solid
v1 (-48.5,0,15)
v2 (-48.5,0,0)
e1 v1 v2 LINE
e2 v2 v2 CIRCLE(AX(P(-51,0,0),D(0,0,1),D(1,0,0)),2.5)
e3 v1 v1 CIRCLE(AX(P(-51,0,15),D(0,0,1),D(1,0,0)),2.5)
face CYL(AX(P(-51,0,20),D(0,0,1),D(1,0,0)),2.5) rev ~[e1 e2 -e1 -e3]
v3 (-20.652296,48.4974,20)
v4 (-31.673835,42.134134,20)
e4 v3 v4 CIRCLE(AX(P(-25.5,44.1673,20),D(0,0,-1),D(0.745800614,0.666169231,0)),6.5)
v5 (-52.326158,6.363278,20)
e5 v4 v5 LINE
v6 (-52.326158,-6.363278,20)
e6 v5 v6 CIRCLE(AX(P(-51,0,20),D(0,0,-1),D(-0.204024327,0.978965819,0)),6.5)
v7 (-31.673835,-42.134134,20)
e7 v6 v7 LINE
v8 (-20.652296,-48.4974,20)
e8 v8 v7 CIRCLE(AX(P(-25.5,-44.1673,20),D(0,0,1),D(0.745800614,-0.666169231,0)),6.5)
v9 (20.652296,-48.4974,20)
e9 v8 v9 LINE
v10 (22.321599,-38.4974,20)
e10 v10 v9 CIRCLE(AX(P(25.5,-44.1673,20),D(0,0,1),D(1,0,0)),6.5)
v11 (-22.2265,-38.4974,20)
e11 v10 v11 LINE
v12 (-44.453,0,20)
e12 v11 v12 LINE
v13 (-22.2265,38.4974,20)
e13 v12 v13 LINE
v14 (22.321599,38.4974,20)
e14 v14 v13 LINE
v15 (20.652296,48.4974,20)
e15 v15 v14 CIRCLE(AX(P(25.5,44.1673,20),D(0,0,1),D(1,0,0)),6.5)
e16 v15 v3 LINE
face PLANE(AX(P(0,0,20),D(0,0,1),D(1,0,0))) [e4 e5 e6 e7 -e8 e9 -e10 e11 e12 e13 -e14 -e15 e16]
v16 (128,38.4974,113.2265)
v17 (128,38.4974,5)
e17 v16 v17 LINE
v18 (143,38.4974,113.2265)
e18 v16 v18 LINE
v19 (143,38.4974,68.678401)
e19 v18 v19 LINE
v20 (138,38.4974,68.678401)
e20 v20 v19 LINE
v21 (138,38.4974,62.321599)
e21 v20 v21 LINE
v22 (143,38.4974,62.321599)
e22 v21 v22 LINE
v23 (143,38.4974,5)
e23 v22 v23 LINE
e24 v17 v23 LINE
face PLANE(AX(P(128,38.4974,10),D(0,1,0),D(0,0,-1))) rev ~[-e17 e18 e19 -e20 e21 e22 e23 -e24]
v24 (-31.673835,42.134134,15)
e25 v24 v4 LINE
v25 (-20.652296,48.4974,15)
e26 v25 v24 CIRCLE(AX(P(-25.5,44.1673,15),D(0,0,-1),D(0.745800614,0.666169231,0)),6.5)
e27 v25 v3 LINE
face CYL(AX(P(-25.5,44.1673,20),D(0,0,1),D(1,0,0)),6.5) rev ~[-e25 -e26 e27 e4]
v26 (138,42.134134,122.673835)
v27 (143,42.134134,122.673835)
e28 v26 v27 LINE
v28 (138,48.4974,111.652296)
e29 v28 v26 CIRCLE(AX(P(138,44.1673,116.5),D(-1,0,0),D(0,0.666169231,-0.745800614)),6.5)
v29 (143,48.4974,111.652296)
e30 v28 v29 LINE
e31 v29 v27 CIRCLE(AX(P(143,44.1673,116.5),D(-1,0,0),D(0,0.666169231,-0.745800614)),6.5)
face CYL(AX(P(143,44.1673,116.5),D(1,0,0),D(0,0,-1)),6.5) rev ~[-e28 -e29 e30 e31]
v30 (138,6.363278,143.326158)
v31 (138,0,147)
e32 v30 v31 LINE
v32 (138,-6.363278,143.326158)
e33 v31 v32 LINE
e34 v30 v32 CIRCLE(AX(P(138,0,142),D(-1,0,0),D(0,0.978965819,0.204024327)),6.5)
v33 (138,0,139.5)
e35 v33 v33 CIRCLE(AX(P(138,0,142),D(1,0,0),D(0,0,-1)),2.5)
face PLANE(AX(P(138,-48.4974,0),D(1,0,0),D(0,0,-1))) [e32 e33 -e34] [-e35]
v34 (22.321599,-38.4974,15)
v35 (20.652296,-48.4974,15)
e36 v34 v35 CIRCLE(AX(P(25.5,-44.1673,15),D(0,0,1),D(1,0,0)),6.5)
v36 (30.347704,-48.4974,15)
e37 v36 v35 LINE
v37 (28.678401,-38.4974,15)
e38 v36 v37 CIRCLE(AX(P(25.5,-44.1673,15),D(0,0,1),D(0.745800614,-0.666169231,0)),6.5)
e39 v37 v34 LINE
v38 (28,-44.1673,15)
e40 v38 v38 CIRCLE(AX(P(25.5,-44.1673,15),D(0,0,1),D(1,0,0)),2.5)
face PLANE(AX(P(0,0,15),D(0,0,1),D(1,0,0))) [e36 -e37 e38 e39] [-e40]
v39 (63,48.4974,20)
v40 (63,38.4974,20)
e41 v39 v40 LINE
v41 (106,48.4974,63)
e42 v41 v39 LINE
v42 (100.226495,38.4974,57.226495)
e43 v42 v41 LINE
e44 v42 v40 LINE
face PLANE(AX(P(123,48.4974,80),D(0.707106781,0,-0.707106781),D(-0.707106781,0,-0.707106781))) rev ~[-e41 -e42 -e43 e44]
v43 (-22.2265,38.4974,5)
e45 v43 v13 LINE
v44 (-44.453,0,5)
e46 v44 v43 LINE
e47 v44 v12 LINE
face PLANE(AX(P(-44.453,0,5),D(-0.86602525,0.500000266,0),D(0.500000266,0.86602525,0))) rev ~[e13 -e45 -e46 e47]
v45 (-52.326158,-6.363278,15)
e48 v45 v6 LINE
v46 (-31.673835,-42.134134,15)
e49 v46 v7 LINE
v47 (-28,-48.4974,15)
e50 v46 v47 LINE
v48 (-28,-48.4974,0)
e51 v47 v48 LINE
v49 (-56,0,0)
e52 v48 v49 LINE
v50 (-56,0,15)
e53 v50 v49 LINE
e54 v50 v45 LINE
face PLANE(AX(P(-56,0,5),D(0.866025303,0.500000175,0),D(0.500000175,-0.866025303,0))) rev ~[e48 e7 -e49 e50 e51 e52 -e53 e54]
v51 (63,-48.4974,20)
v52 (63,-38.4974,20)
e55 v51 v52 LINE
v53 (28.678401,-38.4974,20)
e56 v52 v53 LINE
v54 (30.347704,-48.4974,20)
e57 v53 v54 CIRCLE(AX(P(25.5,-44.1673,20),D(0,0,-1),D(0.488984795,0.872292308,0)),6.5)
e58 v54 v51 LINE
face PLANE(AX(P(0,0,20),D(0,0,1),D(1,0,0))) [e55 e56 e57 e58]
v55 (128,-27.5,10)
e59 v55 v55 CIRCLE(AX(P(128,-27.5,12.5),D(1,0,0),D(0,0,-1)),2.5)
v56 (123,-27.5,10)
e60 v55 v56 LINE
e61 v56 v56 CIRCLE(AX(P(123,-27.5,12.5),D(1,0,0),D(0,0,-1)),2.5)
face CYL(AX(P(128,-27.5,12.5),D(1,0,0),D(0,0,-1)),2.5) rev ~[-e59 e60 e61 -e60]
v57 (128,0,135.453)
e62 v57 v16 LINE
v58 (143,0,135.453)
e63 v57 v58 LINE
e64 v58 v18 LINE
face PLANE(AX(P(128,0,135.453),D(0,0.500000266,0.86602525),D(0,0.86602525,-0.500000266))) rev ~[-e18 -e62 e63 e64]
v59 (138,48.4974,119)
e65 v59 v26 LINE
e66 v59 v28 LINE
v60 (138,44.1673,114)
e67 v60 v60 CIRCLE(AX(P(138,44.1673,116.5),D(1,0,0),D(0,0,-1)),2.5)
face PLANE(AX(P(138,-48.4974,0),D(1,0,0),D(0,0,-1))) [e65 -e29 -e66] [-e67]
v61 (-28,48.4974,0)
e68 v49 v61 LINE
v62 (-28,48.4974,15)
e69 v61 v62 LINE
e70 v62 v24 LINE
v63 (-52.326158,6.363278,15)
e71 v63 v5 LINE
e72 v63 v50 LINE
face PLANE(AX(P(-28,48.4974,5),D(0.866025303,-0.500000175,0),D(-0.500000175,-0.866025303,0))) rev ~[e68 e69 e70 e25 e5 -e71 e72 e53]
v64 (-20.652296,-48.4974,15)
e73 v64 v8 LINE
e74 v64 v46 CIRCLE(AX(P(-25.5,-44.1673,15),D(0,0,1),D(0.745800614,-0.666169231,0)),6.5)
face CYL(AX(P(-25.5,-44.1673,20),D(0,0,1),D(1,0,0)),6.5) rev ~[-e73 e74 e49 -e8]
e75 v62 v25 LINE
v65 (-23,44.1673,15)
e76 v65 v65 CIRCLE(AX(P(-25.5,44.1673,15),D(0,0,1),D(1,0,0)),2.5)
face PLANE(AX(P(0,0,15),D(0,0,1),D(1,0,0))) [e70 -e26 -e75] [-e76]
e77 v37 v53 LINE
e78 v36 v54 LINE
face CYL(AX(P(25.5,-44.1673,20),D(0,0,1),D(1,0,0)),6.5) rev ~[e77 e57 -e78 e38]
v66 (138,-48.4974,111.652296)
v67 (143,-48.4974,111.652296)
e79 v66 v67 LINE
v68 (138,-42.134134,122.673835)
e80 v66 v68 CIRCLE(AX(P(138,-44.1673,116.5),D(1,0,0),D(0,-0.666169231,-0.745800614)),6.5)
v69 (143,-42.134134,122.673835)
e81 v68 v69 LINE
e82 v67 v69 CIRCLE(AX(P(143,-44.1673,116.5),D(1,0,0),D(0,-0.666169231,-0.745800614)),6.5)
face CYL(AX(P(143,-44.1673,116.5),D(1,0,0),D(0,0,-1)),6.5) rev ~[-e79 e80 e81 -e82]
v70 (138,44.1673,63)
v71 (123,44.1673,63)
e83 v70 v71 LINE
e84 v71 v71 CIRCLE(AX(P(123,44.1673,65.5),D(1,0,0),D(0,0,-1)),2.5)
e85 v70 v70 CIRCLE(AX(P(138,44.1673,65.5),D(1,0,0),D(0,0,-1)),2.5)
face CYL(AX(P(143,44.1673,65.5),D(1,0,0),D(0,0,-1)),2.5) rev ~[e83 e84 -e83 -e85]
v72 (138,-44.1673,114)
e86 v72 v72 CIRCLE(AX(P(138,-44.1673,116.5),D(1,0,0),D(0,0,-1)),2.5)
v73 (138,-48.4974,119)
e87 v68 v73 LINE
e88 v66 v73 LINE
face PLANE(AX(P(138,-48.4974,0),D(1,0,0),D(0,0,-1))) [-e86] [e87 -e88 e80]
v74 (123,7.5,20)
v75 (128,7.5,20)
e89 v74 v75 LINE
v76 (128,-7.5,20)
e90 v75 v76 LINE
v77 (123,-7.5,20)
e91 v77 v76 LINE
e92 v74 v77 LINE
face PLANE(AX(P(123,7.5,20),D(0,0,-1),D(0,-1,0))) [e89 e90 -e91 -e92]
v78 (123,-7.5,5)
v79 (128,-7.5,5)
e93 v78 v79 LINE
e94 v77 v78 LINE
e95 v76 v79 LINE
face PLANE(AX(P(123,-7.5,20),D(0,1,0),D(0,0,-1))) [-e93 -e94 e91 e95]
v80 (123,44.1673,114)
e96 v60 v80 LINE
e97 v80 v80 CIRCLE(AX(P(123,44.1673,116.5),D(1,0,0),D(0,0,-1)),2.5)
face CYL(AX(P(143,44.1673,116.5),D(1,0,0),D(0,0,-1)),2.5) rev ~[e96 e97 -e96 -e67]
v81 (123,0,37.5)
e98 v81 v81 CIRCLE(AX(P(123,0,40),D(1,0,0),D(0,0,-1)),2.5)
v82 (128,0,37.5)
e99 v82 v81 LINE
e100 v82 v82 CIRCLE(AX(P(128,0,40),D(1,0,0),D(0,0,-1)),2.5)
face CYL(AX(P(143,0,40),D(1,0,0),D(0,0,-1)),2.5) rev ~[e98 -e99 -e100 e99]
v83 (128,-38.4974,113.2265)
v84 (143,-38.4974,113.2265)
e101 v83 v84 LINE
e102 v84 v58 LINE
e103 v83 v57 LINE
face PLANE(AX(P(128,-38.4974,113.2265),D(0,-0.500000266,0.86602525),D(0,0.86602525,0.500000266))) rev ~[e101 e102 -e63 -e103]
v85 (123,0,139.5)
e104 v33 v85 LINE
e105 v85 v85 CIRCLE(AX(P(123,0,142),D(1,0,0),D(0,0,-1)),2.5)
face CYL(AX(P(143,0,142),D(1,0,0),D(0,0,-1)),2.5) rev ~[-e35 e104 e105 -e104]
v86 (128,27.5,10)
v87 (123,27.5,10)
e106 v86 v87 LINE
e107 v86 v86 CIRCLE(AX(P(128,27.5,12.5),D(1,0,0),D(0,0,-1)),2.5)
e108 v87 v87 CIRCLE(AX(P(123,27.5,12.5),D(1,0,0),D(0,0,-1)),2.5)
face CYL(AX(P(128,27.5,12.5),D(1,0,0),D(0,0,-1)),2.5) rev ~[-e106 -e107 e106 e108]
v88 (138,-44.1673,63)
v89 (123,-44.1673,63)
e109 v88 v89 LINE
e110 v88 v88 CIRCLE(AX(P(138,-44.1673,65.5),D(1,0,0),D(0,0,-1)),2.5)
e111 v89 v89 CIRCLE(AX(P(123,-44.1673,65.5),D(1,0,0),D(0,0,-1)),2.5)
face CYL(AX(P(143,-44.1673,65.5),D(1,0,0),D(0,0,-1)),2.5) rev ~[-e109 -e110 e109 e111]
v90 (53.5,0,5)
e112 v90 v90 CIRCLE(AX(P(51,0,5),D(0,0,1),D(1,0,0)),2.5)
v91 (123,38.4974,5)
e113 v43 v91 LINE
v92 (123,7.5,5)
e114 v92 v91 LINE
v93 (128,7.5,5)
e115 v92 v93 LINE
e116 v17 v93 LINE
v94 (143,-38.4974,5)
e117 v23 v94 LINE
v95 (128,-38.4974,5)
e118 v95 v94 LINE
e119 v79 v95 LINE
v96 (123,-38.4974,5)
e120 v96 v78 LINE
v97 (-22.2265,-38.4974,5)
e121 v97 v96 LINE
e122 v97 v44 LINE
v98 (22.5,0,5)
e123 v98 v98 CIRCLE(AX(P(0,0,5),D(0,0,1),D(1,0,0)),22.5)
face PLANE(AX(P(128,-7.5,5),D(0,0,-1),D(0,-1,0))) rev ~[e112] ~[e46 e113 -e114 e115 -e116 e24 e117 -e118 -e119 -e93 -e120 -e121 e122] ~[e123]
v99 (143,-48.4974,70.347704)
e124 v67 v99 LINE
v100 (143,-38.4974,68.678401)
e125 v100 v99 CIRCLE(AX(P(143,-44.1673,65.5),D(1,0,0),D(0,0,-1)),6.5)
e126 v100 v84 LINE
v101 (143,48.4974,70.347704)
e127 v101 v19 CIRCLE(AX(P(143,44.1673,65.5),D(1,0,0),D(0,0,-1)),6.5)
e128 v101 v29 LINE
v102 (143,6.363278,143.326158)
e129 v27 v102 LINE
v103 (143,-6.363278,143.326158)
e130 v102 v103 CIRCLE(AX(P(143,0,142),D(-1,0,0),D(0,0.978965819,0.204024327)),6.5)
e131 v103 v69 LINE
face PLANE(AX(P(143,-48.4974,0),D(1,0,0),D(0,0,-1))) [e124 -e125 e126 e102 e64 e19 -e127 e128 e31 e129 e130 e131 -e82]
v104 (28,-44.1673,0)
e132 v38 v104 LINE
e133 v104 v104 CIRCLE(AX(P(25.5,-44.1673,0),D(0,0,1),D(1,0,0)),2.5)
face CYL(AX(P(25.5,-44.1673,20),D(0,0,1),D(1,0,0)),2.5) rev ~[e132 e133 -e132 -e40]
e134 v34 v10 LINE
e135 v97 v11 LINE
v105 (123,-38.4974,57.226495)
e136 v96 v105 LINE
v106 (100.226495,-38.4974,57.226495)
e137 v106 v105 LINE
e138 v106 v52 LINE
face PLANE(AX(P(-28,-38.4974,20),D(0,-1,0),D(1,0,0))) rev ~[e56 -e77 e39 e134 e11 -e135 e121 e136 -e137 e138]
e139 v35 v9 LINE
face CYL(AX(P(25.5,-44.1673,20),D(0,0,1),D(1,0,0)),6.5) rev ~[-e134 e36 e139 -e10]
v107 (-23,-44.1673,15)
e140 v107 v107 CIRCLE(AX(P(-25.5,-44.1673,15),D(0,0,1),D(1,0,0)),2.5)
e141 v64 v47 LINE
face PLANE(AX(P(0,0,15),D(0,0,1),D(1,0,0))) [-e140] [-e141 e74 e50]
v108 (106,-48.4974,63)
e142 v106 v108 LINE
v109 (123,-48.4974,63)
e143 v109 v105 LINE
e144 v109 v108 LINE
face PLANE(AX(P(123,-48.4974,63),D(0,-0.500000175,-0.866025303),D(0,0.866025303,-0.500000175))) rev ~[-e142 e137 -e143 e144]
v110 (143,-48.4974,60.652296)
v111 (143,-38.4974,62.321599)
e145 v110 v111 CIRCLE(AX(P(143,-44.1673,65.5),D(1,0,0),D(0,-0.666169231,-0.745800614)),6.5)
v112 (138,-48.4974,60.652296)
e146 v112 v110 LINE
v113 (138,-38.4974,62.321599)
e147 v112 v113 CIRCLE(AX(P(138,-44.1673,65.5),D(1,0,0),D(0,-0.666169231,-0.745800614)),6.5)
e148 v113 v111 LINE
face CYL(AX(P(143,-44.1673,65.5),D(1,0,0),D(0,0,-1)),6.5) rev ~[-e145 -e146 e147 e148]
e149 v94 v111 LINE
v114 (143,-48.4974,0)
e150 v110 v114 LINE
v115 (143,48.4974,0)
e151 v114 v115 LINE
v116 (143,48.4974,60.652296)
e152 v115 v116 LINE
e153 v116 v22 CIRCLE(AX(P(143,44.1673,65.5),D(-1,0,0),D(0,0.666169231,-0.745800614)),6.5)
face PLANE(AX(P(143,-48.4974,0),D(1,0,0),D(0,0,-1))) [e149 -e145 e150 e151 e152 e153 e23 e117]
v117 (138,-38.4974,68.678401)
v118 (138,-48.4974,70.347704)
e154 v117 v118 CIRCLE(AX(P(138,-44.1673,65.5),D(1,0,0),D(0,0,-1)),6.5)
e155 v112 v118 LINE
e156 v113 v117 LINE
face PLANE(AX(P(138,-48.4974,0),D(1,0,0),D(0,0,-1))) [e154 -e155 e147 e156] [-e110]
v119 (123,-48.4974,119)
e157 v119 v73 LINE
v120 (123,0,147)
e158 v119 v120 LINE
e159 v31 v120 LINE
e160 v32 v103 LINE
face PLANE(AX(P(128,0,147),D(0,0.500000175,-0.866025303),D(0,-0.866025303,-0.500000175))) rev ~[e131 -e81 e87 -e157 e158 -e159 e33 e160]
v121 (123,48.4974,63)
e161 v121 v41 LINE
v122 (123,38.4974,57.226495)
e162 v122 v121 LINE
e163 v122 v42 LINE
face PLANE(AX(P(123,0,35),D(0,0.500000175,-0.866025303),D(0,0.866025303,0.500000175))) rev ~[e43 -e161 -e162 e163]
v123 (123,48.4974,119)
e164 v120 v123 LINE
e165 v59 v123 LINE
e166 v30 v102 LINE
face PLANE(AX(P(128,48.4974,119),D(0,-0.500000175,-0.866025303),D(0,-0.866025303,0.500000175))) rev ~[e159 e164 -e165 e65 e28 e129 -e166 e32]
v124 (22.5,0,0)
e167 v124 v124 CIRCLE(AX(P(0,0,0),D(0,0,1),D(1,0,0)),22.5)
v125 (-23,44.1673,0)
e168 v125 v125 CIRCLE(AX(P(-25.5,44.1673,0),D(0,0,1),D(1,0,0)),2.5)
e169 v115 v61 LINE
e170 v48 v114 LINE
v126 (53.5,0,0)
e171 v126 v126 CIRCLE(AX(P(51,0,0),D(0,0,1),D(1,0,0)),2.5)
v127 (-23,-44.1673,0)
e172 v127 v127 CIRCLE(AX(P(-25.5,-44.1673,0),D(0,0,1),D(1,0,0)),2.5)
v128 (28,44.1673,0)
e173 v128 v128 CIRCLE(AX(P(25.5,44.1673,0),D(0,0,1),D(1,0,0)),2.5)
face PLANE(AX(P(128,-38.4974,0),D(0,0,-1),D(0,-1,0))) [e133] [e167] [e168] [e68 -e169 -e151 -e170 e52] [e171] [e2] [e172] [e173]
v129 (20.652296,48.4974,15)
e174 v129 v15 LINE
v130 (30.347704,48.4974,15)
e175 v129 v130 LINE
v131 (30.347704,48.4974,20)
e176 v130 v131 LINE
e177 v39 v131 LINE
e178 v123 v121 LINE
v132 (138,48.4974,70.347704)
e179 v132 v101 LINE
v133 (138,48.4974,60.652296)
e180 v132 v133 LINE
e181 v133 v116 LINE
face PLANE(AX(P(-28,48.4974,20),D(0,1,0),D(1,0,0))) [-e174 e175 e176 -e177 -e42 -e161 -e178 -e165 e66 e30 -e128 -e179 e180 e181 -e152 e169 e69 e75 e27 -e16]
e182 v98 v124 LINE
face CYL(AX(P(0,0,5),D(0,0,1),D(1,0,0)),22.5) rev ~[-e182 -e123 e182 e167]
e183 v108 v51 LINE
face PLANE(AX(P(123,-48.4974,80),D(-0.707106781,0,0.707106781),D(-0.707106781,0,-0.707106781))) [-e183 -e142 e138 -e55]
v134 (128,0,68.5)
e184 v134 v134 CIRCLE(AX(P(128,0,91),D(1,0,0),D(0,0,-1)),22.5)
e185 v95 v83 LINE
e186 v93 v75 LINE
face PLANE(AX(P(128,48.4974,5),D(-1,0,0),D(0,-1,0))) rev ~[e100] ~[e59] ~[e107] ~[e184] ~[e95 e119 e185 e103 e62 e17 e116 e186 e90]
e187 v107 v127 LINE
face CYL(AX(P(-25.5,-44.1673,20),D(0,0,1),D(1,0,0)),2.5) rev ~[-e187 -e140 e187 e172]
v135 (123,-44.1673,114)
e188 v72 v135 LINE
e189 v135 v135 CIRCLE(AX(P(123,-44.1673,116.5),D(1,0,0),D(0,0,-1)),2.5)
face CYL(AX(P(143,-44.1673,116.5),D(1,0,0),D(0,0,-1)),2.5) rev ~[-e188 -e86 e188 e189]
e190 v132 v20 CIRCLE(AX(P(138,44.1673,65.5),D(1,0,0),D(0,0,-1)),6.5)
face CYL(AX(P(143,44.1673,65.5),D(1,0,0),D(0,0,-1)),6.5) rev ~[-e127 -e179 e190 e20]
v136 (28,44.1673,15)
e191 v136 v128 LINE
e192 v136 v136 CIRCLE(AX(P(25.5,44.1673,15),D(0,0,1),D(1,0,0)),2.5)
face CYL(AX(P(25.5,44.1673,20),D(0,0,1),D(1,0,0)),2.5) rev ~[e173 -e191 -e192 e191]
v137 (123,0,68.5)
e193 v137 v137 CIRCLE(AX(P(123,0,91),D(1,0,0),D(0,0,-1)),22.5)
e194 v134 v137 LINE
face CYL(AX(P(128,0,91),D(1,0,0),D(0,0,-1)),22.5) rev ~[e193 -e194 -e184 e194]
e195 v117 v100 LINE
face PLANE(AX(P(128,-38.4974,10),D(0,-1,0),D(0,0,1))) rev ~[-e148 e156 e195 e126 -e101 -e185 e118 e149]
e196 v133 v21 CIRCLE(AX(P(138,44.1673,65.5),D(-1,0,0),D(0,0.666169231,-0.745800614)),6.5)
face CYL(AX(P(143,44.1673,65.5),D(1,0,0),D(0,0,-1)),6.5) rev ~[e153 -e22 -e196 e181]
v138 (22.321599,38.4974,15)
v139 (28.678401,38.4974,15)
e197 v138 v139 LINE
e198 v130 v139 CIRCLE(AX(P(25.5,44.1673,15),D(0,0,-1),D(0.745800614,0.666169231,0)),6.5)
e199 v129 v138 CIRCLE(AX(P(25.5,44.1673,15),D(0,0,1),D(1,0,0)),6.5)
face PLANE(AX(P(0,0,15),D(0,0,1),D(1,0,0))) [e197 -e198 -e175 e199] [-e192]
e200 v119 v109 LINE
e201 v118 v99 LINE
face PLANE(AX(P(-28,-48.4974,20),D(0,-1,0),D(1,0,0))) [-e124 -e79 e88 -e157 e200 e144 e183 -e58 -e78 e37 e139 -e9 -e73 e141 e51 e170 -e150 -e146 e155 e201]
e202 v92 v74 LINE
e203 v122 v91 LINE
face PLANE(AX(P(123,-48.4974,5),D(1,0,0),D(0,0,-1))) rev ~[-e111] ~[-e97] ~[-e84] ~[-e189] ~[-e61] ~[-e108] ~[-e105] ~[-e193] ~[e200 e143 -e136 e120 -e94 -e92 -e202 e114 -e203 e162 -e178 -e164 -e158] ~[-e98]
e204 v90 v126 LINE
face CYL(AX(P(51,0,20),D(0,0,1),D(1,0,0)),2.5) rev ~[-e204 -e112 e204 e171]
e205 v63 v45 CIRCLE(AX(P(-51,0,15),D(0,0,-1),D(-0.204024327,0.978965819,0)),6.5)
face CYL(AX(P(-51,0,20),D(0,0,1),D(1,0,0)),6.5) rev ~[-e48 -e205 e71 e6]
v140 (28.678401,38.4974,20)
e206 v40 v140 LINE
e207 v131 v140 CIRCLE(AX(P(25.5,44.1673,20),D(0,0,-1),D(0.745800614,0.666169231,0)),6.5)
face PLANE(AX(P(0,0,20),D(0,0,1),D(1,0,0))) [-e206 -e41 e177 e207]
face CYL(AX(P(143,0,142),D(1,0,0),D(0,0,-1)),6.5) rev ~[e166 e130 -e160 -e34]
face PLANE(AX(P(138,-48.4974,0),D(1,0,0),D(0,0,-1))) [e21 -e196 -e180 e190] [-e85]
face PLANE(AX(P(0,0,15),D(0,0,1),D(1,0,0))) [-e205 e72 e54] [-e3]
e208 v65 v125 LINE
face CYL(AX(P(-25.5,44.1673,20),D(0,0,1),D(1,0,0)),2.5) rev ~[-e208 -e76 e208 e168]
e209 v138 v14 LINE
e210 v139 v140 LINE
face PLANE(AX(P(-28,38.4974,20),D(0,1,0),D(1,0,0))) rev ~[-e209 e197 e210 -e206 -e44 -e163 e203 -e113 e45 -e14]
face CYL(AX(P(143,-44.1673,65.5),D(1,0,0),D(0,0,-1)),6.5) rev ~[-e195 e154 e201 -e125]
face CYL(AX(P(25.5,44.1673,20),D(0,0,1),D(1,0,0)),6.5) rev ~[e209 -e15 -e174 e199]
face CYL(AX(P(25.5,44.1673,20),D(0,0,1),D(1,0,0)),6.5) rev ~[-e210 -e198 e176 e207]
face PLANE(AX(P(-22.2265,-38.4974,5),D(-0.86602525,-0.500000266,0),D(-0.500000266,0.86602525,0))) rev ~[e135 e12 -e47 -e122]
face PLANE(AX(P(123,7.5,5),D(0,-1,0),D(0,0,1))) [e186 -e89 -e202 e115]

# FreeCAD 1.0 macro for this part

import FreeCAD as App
import Part
import Sketcher

V = App.Vector
Q = App.Units.Quantity

doc = App.newDocument("Part")
body = doc.addObject("PartDesign::Body", "Body")

# Sketch on XY plane
sketch1 = body.newObject("Sketcher::SketchObject", "Sketch")
sketch1.AttachmentSupport = (doc.getObject("XY_Plane"), [""])
sketch1.MapMode = "FlatFace"
sketch1.addGeometry([
    Part.LineSegment(V(-28, 48.5, 0), V(-56, 0, 0)),  # 0
    Part.LineSegment(V(-56, 0, 0), V(-28, -48.5, 0)),  # 1
    Part.LineSegment(V(-28, -48.5, 0), V(28, -48.5, 0)),  # 2
    Part.LineSegment(V(28, -48.5, 0), V(56, 0, 0)),  # 3
    Part.LineSegment(V(56, 0, 0), V(28, 48.5, 0)),  # 4
    Part.LineSegment(V(28, 48.5, 0), V(-28, 48.5, 0)),  # 5
    Part.Circle(V(-26, -15, 0), V(0, 0, 1), 2.5),  # 6
    Part.Circle(V(0, -30, 0), V(0, 0, 1), 2.5),  # 7
    Part.Circle(V(26, -15, 0), V(0, 0, 1), 2.5),  # 8
    Part.Circle(V(-26, 15, 0), V(0, 0, 1), 2.5),  # 9
    Part.Circle(V(26, 15, 0), V(0, 0, 1), 2.5),  # 10
    Part.Circle(V(0, 30, 0), V(0, 0, 1), 2.5),  # 11
], False)
sketch1.addConstraint([
    Sketcher.Constraint("Coincident", 0, 2, 1, 1),
    Sketcher.Constraint("Coincident", 1, 2, 2, 1),
    Sketcher.Constraint("Coincident", 2, 2, 3, 1),
    Sketcher.Constraint("Coincident", 3, 2, 4, 1),
    Sketcher.Constraint("Coincident", 4, 2, 5, 1),
    Sketcher.Constraint("Coincident", 5, 2, 0, 1),
    Sketcher.Constraint("Horizontal", 2),
    Sketcher.Constraint("Horizontal", 5),
    Sketcher.Constraint("Equal", 6, 7),
    Sketcher.Constraint("Equal", 7, 8),
    Sketcher.Constraint("Equal", 8, 9),
    Sketcher.Constraint("Equal", 9, 10),
    Sketcher.Constraint("Equal", 10, 11),
    Sketcher.Constraint("Symmetric", 8, 3, 9, 3, -1, 1),
    Sketcher.Constraint("Symmetric", 6, 3, 10, 3, -1, 1),
    Sketcher.Constraint("Symmetric", 7, 3, 11, 3, -1, 1),
    Sketcher.Constraint("Symmetric", 0, 2, 3, 2, -1, 1),
    Sketcher.Constraint("Symmetric", 1, 2, 4, 2, -1, 1),
    Sketcher.Constraint("Symmetric", 6, 3, 8, 3, -2),
    Sketcher.Constraint("PointOnObject", 7, 3, -2),
    Sketcher.Constraint("PointOnObject", 0, 2, -1),
    Sketcher.Constraint("Parallel", 0, 3),
    Sketcher.Constraint("Vertical", 2, 2, 4, 2),
    Sketcher.Constraint("Diameter", 6, Q("5 mm")),
    Sketcher.Constraint("DistanceY", 7, 3, -1, 1, Q("30 mm")),
    Sketcher.Constraint("DistanceY", 6, 3, 9, 3, Q("30 mm")),
    Sketcher.Constraint("DistanceX", 2, 1, 2, 2, Q("56 mm")),
    Sketcher.Constraint("Angle", 0, Q("-120 deg")),
    Sketcher.Constraint("Distance", 0, Q("56 mm")),
    Sketcher.Constraint("DistanceX", 6, 3, -1, 1, Q("25.9808 mm")),
])
pad1 = body.newObject("PartDesign::Pad", "Pad")
pad1.Profile = sketch1
pad1.Length = 5

# Sketch on XY plane
sketch2 = body.newObject("Sketcher::SketchObject", "Sketch001")
sketch2.AttachmentSupport = (doc.getObject("XY_Plane"), [""])
sketch2.MapMode = "FlatFace"
sketch2.AttachmentOffset = App.Placement(V(0, 0, 5), App.Rotation())
sketch2.addGeometry([
    Part.LineSegment(V(128, 48, 0), V(28, 48, 0)),  # 0
    Part.LineSegment(V(28, 48, 0), V(56, 0, 0)),  # 1
    Part.LineSegment(V(56, 0, 0), V(28, -48, 0)),  # 2
    Part.LineSegment(V(28, -48, 0), V(128, -48, 0)),  # 3
    Part.LineSegment(V(128, -48, 0), V(128, 48, 0)),  # 4
], False)
sketch2.addConstraint([
    Sketcher.Constraint("Coincident", 0, 2, 1, 1),
    Sketcher.Constraint("Coincident", 1, 2, 2, 1),
    Sketcher.Constraint("Coincident", 2, 2, 3, 1),
    Sketcher.Constraint("Coincident", 3, 2, 4, 1),
    Sketcher.Constraint("Coincident", 4, 2, 0, 1),
    Sketcher.Constraint("Horizontal", 0),
    Sketcher.Constraint("Horizontal", 3),
    Sketcher.Constraint("Vertical", 4),
    Sketcher.Constraint("Symmetric", 0, 2, 2, 2, -1),
    Sketcher.Constraint("PointOnObject", 1, 2, -1),
    Sketcher.Constraint("DistanceX", 0, 2, 0, 1, Q("100 mm")),
    Sketcher.Constraint("Angle", 1, Q("-60 deg")),
    Sketcher.Constraint("Distance", 1, Q("56 mm")),
    Sketcher.Constraint("DistanceX", -1, 1, 0, 2, Q("28 mm")),
])
pad2 = body.newObject("PartDesign::Pad", "Pad001")
pad2.Profile = sketch2
pad2.Length = 5
pad2.Reversed = True

# Sketch on YZ plane
sketch3 = body.newObject("Sketcher::SketchObject", "Sketch002")
sketch3.AttachmentSupport = (doc.getObject("YZ_Plane"), [""])
sketch3.MapMode = "FlatFace"
sketch3.AttachmentOffset = App.Placement(V(0, 0, 128), App.Rotation())
sketch3.addGeometry([
    Part.LineSegment(V(-48.5, 5, 0), V(48.5, 5, 0)),  # 0
    Part.LineSegment(V(48.5, 5, 0), V(48.5, 119, 0)),  # 1
    Part.LineSegment(V(48.5, 119, 0), V(0, 147, 0)),  # 2
    Part.LineSegment(V(0, 147, 0), V(-48.5, 119, 0)),  # 3
    Part.LineSegment(V(-48.5, 119, 0), V(-48.5, 5, 0)),  # 4
    Part.Circle(V(30, 91, 0), V(0, 0, 1), 2.5),  # 5
    Part.Circle(V(15, 65, 0), V(0, 0, 1), 2.5),  # 6
    Part.Circle(V(-30, 91, 0), V(0, 0, 1), 2.5),  # 7
    Part.Circle(V(-15, 117, 0), V(0, 0, 1), 2.5),  # 8
    Part.Circle(V(-15, 65, 0), V(0, 0, 1), 2.5),  # 9
    Part.Circle(V(15, 117, 0), V(0, 0, 1), 2.5),  # 10
    Part.Circle(V(0, 91, 0), V(0, 0, 1), 22.5),  # 11
], False)
sketch3.addConstraint([
    Sketcher.Constraint("Coincident", 0, 2, 1, 1),
    Sketcher.Constraint("Coincident", 1, 2, 2, 1),
    Sketcher.Constraint("Coincident", 2, 2, 3, 1),
    Sketcher.Constraint("Coincident", 3, 2, 4, 1),
    Sketcher.Constraint("Coincident", 4, 2, 0, 1),
    Sketcher.Constraint("Horizontal", 0),
    Sketcher.Constraint("Vertical", 1),
    Sketcher.Constraint("Vertical", 4),
    Sketcher.Constraint("Equal", 5, 6),
    Sketcher.Constraint("Equal", 6, 7),
    Sketcher.Constraint("Equal", 7, 8),
    Sketcher.Constraint("Equal", 8, 9),
    Sketcher.Constraint("Equal", 9, 10),
    Sketcher.Constraint("Symmetric", 5, 3, 7, 3, -2),
    Sketcher.Constraint("Symmetric", 6, 3, 9, 3, -2),
    Sketcher.Constraint("Symmetric", 8, 3, 10, 3, -2),
    Sketcher.Constraint("Symmetric", 1, 2, 3, 2, -2),
    Sketcher.Constraint("PointOnObject", 11, 3, -2),
    Sketcher.Constraint("PointOnObject", 2, 2, -2),
    Sketcher.Constraint("Horizontal", 7, 3, 11, 3),
    Sketcher.Constraint("Vertical", 8, 3, 9, 3),
    Sketcher.Constraint("Diameter", 5, Q("5 mm")),
    Sketcher.Constraint("Diameter", 11, Q("45 mm")),
    Sketcher.Constraint("DistanceX", -1, 1, 5, 3, Q("30 mm")),
    Sketcher.Constraint("DistanceY", -1, 1, 0, 2, Q("5 mm")),
    Sketcher.Constraint("DistanceX", 7, 3, 6, 3, Q("45 mm")),
    Sketcher.Constraint("DistanceY", 1, 1, 1, 2, Q("114 mm")),
    Sketcher.Constraint("Angle", 2, Q("150 deg")),
    Sketcher.Constraint("Distance", 2, Q("56 mm")),
    Sketcher.Constraint("DistanceY", -1, 1, 5, 3, Q("91 mm")),
    Sketcher.Constraint("DistanceY", -1, 1, 6, 3, Q("65.0192 mm")),
    Sketcher.Constraint("DistanceY", -1, 1, 8, 3, Q("116.9808 mm")),
])
pad3 = body.newObject("PartDesign::Pad", "Pad002")
pad3.Profile = sketch3
pad3.Length = 5
pad3.Reversed = True

# Sketch on XY plane
sketch4 = body.newObject("Sketcher::SketchObject", "Sketch003")
sketch4.AttachmentSupport = (doc.getObject("XY_Plane"), [""])
sketch4.MapMode = "FlatFace"
sketch4.AttachmentOffset = App.Placement(V(0, 0, 5), App.Rotation())
sketch4.addGeometry(Part.Circle(V(0, 0, 0), V(0, 0, 1), 22), False)
sketch4.addConstraint([
    Sketcher.Constraint("Coincident", 0, 3, -1, 1),
    Sketcher.Constraint("Diameter", 0, Q("45 mm")),
])
pocket1 = body.newObject("PartDesign::Pocket", "Pocket")
pocket1.Profile = sketch4
pocket1.Type = "ThroughAll"

# Sketch on XY plane
sketch5 = body.newObject("Sketcher::SketchObject", "Sketch004")
sketch5.AttachmentSupport = (doc.getObject("XY_Plane"), [""])
sketch5.MapMode = "FlatFace"
sketch5.AttachmentOffset = App.Placement(V(0, 0, 5), App.Rotation())
sketch5.addGeometry([
    Part.LineSegment(V(123, 38, 0), V(123, 48, 0)),  # 0
    Part.LineSegment(V(123, 48, 0), V(-28, 48, 0)),  # 1
    Part.LineSegment(V(-28, 48, 0), V(-56, 0, 0)),  # 2
    Part.LineSegment(V(-56, 0, 0), V(-28, -48, 0)),  # 3
    Part.LineSegment(V(-28, -48, 0), V(123, -48, 0)),  # 4
    Part.LineSegment(V(123, -48, 0), V(123, -38, 0)),  # 5
    Part.LineSegment(V(123, -38, 0), V(-22, -38, 0)),  # 6
    Part.LineSegment(V(-22, -38, 0), V(-44, 0, 0)),  # 7
    Part.LineSegment(V(-44, 0, 0), V(-22, 38, 0)),  # 8
    Part.LineSegment(V(-22, 38, 0), V(123, 38, 0)),  # 9
], False)
sketch5.addConstraint([
    Sketcher.Constraint("Coincident", 0, 2, 1, 1),
    Sketcher.Constraint("Coincident", 1, 2, 2, 1),
    Sketcher.Constraint("Coincident", 2, 2, 3, 1),
    Sketcher.Constraint("Coincident", 3, 2, 4, 1),
    Sketcher.Constraint("Coincident", 4, 2, 5, 1),
    Sketcher.Constraint("Coincident", 5, 2, 6, 1),
    Sketcher.Constraint("Coincident", 6, 2, 7, 1),
    Sketcher.Constraint("Coincident", 7, 2, 8, 1),
    Sketcher.Constraint("Coincident", 8, 2, 9, 1),
    Sketcher.Constraint("Coincident", 9, 2, 0, 1),
    Sketcher.Constraint("Vertical", 0),
    Sketcher.Constraint("Horizontal", 1),
    Sketcher.Constraint("Horizontal", 4),
    Sketcher.Constraint("Vertical", 5),
    Sketcher.Constraint("Horizontal", 6),
    Sketcher.Constraint("Horizontal", 9),
    Sketcher.Constraint("Symmetric", 1, 2, 3, 2, -1),
    Sketcher.Constraint("Symmetric", 6, 2, 8, 2, -1),
    Sketcher.Constraint("PointOnObject", 2, 2, -1),
    Sketcher.Constraint("PointOnObject", 7, 2, -1),
    Sketcher.Constraint("Parallel", 3, 7),
    Sketcher.Constraint("Vertical", 0, 2, 4, 2),
    Sketcher.Constraint("DistanceY", 0, 1, 0, 2, Q("10 mm")),
    Sketcher.Constraint("DistanceX", 1, 2, 1, 1, Q("151 mm")),
    Sketcher.Constraint("Angle", 2, Q("-120 deg")),
    Sketcher.Constraint("Distance", 2, Q("56 mm")),
    Sketcher.Constraint("DistanceX", -1, 1, 0, 2, Q("123 mm")),
    Sketcher.Constraint("DistanceX", 6, 2, 6, 1, Q("145.2265 mm")),
])
pad4 = body.newObject("PartDesign::Pad", "Pad003")
pad4.Profile = sketch5
pad4.Length = 15

# Sketch on YZ plane
sketch6 = body.newObject("Sketcher::SketchObject", "Sketch005")
sketch6.AttachmentSupport = (doc.getObject("YZ_Plane"), [""])
sketch6.MapMode = "FlatFace"
sketch6.AttachmentOffset = App.Placement(V(0, 0, 123), App.Rotation())
sketch6.addGeometry([
    Part.LineSegment(V(8, 20, 0), V(8, 5, 0)),
    Part.LineSegment(V(8, 5, 0), V(-8, 5, 0)),
    Part.LineSegment(V(-8, 5, 0), V(-8, 20, 0)),
    Part.LineSegment(V(-8, 20, 0), V(8, 20, 0)),
], False)
sketch6.addConstraint([
    Sketcher.Constraint("Coincident", 0, 2, 1, 1),
    Sketcher.Constraint("Coincident", 1, 2, 2, 1),
    Sketcher.Constraint("Coincident", 2, 2, 3, 1),
    Sketcher.Constraint("Coincident", 3, 2, 0, 1),
    Sketcher.Constraint("Vertical", 0),
    Sketcher.Constraint("Horizontal", 1),
    Sketcher.Constraint("Vertical", 2),
    Sketcher.Constraint("Horizontal", 3),
    Sketcher.Constraint("Equal", 3, 0),
    Sketcher.Constraint("DistanceX", 1, 2, 1, 1, Q("15 mm")),
    Sketcher.Constraint("DistanceY", -1, 1, 0, 2, Q("5 mm")),
    Sketcher.Constraint("DistanceX", -1, 1, 0, 2, Q("7.5 mm")),
])
pocket2 = body.newObject("PartDesign::Pocket", "Pocket001")
pocket2.Profile = sketch6
pocket2.Type = "ThroughAll"
pocket2.Reversed = True

# Sketch on YZ plane
sketch7 = body.newObject("Sketcher::SketchObject", "Sketch006")
sketch7.AttachmentSupport = (doc.getObject("YZ_Plane"), [""])
sketch7.MapMode = "FlatFace"
sketch7.AttachmentOffset = App.Placement(V(0, 0, 128), App.Rotation())
sketch7.addGeometry([
    Part.LineSegment(V(0, 147, 0), V(-48, 119, 0)),  # 0
    Part.LineSegment(V(-48, 119, 0), V(-48, 0, 0)),  # 1
    Part.LineSegment(V(-48, 0, 0), V(-38, 0, 0)),  # 2
    Part.LineSegment(V(-38, 0, 0), V(-38, 113, 0)),  # 3
    Part.LineSegment(V(-38, 113, 0), V(0, 135, 0)),  # 4
    Part.LineSegment(V(0, 135, 0), V(38, 113, 0)),  # 5
    Part.LineSegment(V(38, 113, 0), V(38, 0, 0)),  # 6
    Part.LineSegment(V(38, 0, 0), V(48, 0, 0)),  # 7
    Part.LineSegment(V(48, 0, 0), V(48, 119, 0)),  # 8
    Part.LineSegment(V(48, 119, 0), V(0, 147, 0)),  # 9
], False)
sketch7.addConstraint([
    Sketcher.Constraint("Coincident", 0, 2, 1, 1),
    Sketcher.Constraint("Coincident", 1, 2, 2, 1),
    Sketcher.Constraint("Coincident", 2, 2, 3, 1),
    Sketcher.Constraint("Coincident", 3, 2, 4, 1),
    Sketcher.Constraint("Coincident", 4, 2, 5, 1),
    Sketcher.Constraint("Coincident", 5, 2, 6, 1),
    Sketcher.Constraint("Coincident", 6, 2, 7, 1),
    Sketcher.Constraint("Coincident", 7, 2, 8, 1),
    Sketcher.Constraint("Coincident", 8, 2, 9, 1),
    Sketcher.Constraint("Coincident", 9, 2, 0, 1),
    Sketcher.Constraint("Vertical", 1),
    Sketcher.Constraint("Horizontal", 2),
    Sketcher.Constraint("Vertical", 3),
    Sketcher.Constraint("Vertical", 6),
    Sketcher.Constraint("Horizontal", 7),
    Sketcher.Constraint("Vertical", 8),
    Sketcher.Constraint("Symmetric", 2, 2, 6, 2, -1, 1),
    Sketcher.Constraint("Symmetric", 1, 2, 7, 2, -2),
    Sketcher.Constraint("PointOnObject", 4, 2, -2),
    Sketcher.Constraint("PointOnObject", 9, 2, -2),
    Sketcher.Constraint("Parallel", 0, 4),
    Sketcher.Constraint("Parallel", 5, 9),
    Sketcher.Constraint("Horizontal", 3, 2, 5, 2),
    Sketcher.Constraint("DistanceX", 2, 1, 2, 2, Q("10 mm")),
    Sketcher.Constraint("DistanceY", 1, 2, 1, 1, Q("119 mm")),
    Sketcher.Constraint("Angle", 0, Q("-150 deg")),
    Sketcher.Constraint("Distance", 0, Q("56 mm")),
    Sketcher.Constraint("DistanceY", 3, 1, 3, 2, Q("113.2265 mm")),
])
pad5 = body.newObject("PartDesign::Pad", "Pad004")
pad5.Profile = sketch7
pad5.Length = 15

# Sketch on YZ plane
sketch8 = body.newObject("Sketcher::SketchObject", "Sketch007")
sketch8.AttachmentSupport = (doc.getObject("YZ_Plane"), [""])
sketch8.MapMode = "FlatFace"
sketch8.AttachmentOffset = App.Placement(V(0, 0, 128), App.Rotation())
sketch8.addGeometry([
    Part.LineSegment(V(-39, 0, 0), V(38, 0, 0)),
    Part.LineSegment(V(38, 0, 0), V(38, 5, 0)),
    Part.LineSegment(V(38, 5, 0), V(-39, 5, 0)),
    Part.LineSegment(V(-39, 5, 0), V(-39, 0, 0)),
], False)
sketch8.addConstraint([
    Sketcher.Constraint("Coincident", 0, 2, 1, 1),
    Sketcher.Constraint("Coincident", 1, 2, 2, 1),
    Sketcher.Constraint("Coincident", 2, 2, 3, 1),
    Sketcher.Constraint("Coincident", 3, 2, 0, 1),
    Sketcher.Constraint("Horizontal", 0),
    Sketcher.Constraint("Vertical", 1),
    Sketcher.Constraint("Horizontal", 2),
    Sketcher.Constraint("Vertical", 3),
    Sketcher.Constraint("PointOnObject", 0, 2, -1),
    Sketcher.Constraint("DistanceY", 1, 1, 1, 2, Q("5 mm")),
    Sketcher.Constraint("DistanceX", 0, 1, 0, 2, Q("77.8328 mm")),
    Sketcher.Constraint("DistanceX", -1, 1, 0, 2, Q("38.4974 mm")),
])
pad6 = body.newObject("PartDesign::Pad", "Pad005")
pad6.Profile = sketch8
pad6.Length = 15

# Sketch on YZ plane
sketch9 = body.newObject("Sketcher::SketchObject", "Sketch008")
sketch9.AttachmentSupport = (doc.getObject("YZ_Plane"), [""])
sketch9.MapMode = "FlatFace"
sketch9.AttachmentOffset = App.Placement(V(0, 0, 128), App.Rotation())
sketch9.addGeometry([
    Part.Circle(V(27.5, 12.5, 0), V(0, 0, 1), 2.5),
    Part.Circle(V(-27.5, 12.5, 0), V(0, 0, 1), 2.5),
], False)
sketch9.addConstraint([
    Sketcher.Constraint("Equal", 0, 1),
    Sketcher.Constraint("Symmetric", 0, 3, 1, 3, -2),
    Sketcher.Constraint("Diameter", 0, Q("5 mm")),
    Sketcher.Constraint("DistanceX", 1, 3, 0, 3, Q("55 mm")),
    Sketcher.Constraint("DistanceY", -1, 1, 0, 3, Q("12.5 mm")),
])
pocket3 = body.newObject("PartDesign::Pocket", "Pocket002")
pocket3.Profile = sketch9
pocket3.Length = 20

# Sketch on XZ plane
sketch10 = body.newObject("Sketcher::SketchObject", "Sketch009")
sketch10.AttachmentSupport = (doc.getObject("XZ_Plane"), [""])
sketch10.MapMode = "FlatFace"
sketch10.AttachmentOffset = App.Placement(V(0, 0, -48.4974), App.Rotation())
sketch10.addGeometry([
    Part.LineSegment(V(63, 20, 0), V(123, 80, 0)),
    Part.LineSegment(V(123, 80, 0), V(123, 20, 0)),
    Part.LineSegment(V(123, 20, 0), V(63, 20, 0)),
], False)
sketch10.addConstraint([
    Sketcher.Constraint("Coincident", 0, 2, 1, 1),
    Sketcher.Constraint("Coincident", 1, 2, 2, 1),
    Sketcher.Constraint("Coincident", 2, 2, 0, 1),
    Sketcher.Constraint("Vertical", 1),
    Sketcher.Constraint("Horizontal", 2),
    Sketcher.Constraint("Equal", 2, 1),
    Sketcher.Constraint("DistanceX", 2, 2, 2, 1, Q("60 mm")),
    Sketcher.Constraint("DistanceX", -1, 1, 0, 2, Q("123 mm")),
    Sketcher.Constraint("DistanceY", -1, 1, 0, 2, Q("80 mm")),
])
pad7 = body.newObject("PartDesign::Pad", "Pad006")
pad7.Profile = sketch10
pad7.Length = 10

# Sketch on XZ plane
sketch11 = body.newObject("Sketcher::SketchObject", "Sketch010")
sketch11.AttachmentSupport = (doc.getObject("XZ_Plane"), [""])
sketch11.MapMode = "FlatFace"
sketch11.AttachmentOffset = App.Placement(V(0, 0, 48.4974), App.Rotation())
sketch11.addGeometry([
    Part.LineSegment(V(123, 20, 0), V(123, 80, 0)),
    Part.LineSegment(V(123, 80, 0), V(63, 20, 0)),
    Part.LineSegment(V(63, 20, 0), V(123, 20, 0)),
], False)
sketch11.addConstraint([
    Sketcher.Constraint("Coincident", 0, 2, 1, 1),
    Sketcher.Constraint("Coincident", 1, 2, 2, 1),
    Sketcher.Constraint("Coincident", 2, 2, 0, 1),
    Sketcher.Constraint("Vertical", 0),
    Sketcher.Constraint("Horizontal", 2),
    Sketcher.Constraint("Equal", 2, 0),
    Sketcher.Constraint("DistanceX", 2, 1, 2, 2, Q("60 mm")),
    Sketcher.Constraint("DistanceX", -1, 1, 0, 2, Q("123 mm")),
    Sketcher.Constraint("DistanceY", -1, 1, 0, 2, Q("80 mm")),
])
pad8 = body.newObject("PartDesign::Pad", "Pad007")
pad8.Profile = sketch11
pad8.Length = 10
pad8.Reversed = True

# Sketch on YZ plane
sketch12 = body.newObject("Sketcher::SketchObject", "Sketch011")
sketch12.AttachmentSupport = (doc.getObject("YZ_Plane"), [""])
sketch12.MapMode = "FlatFace"
sketch12.AttachmentOffset = App.Placement(V(0, 0, 123), App.Rotation())
sketch12.addGeometry([
    Part.LineSegment(V(0, 147, 0), V(48, 119, 0)),  # 0
    Part.LineSegment(V(48, 119, 0), V(48, 63, 0)),  # 1
    Part.LineSegment(V(48, 63, 0), V(0, 35, 0)),  # 2
    Part.LineSegment(V(0, 35, 0), V(-48, 63, 0)),  # 3
    Part.LineSegment(V(-48, 63, 0), V(-48, 119, 0)),  # 4
    Part.LineSegment(V(-48, 119, 0), V(0, 147, 0)),  # 5
    Part.Circle(V(0, 91, 0), V(0, 0, 1), 22),  # 6
], False)
sketch12.addConstraint([
    Sketcher.Constraint("Coincident", 0, 2, 1, 1),
    Sketcher.Constraint("Coincident", 1, 2, 2, 1),
    Sketcher.Constraint("Coincident", 2, 2, 3, 1),
    Sketcher.Constraint("Coincident", 3, 2, 4, 1),
    Sketcher.Constraint("Coincident", 4, 2, 5, 1),
    Sketcher.Constraint("Coincident", 5, 2, 0, 1),
    Sketcher.Constraint("Vertical", 1),
    Sketcher.Constraint("Vertical", 4),
    Sketcher.Constraint("Symmetric", 1, 2, 3, 2, -2),
    Sketcher.Constraint("PointOnObject", 6, 3, -2),
    Sketcher.Constraint("PointOnObject", 2, 2, -2),
    Sketcher.Constraint("PointOnObject", 5, 2, -2),
    Sketcher.Constraint("Parallel", 0, 3),
    Sketcher.Constraint("Parallel", 2, 5),
    Sketcher.Constraint("Diameter", 6, Q("45 mm")),
    Sketcher.Constraint("DistanceY", 1, 2, 1, 1, Q("56 mm")),
    Sketcher.Constraint("Angle", 0, Q("-30 deg")),
    Sketcher.Constraint("Distance", 0, Q("56 mm")),
    Sketcher.Constraint("DistanceY", -1, 1, 6, 3, Q("91 mm")),
    Sketcher.Constraint("DistanceY", -1, 1, 0, 2, Q("119 mm")),
])
pocket4 = body.newObject("PartDesign::Pocket", "Pocket003")
pocket4.Profile = sketch12
pocket4.Type = "ThroughAll"

# Sketch on YZ plane
sketch13 = body.newObject("Sketcher::SketchObject", "Sketch012")
sketch13.AttachmentSupport = (doc.getObject("YZ_Plane"), [""])
sketch13.MapMode = "FlatFace"
sketch13.AttachmentOffset = App.Placement(V(0, 0, 143), App.Rotation())
sketch13.addGeometry([
    Part.Circle(V(0, 142, 0), V(0, 0, 1), 2.5),  # 0
    Part.Circle(V(-44.2, 116.5, 0), V(0, 0, 1), 2.5),  # 1
    Part.Circle(V(-44.2, 65.5, 0), V(0, 0, 1), 2.5),  # 2
    Part.Circle(V(0, 40, 0), V(0, 0, 1), 2.5),  # 3
    Part.Circle(V(44.2, 65.5, 0), V(0, 0, 1), 2.5),  # 4
    Part.Circle(V(44.2, 116.5, 0), V(0, 0, 1), 2.5),  # 5
], False)
sketch13.addConstraint([
    Sketcher.Constraint("Equal", 0, 1),
    Sketcher.Constraint("Equal", 1, 2),
    Sketcher.Constraint("Equal", 2, 3),
    Sketcher.Constraint("Equal", 3, 4),
    Sketcher.Constraint("Equal", 4, 5),
    Sketcher.Constraint("Symmetric", 2, 3, 4, 3, -2),
    Sketcher.Constraint("Symmetric", 1, 3, 5, 3, -2),
    Sketcher.Constraint("PointOnObject", 0, 3, -2),
    Sketcher.Constraint("PointOnObject", 3, 3, -2),
    Sketcher.Constraint("Vertical", 1, 3, 2, 3),
    Sketcher.Constraint("Diameter", 0, Q("5 mm")),
    Sketcher.Constraint("DistanceY", -1, 1, 0, 3, Q("142 mm")),
    Sketcher.Constraint("DistanceY", -1, 1, 3, 3, Q("40 mm")),
    Sketcher.Constraint("DistanceY", 2, 3, 1, 3, Q("51 mm")),
    Sketcher.Constraint("DistanceY", -1, 1, 1, 3, Q("116.5 mm")),
    Sketcher.Constraint("DistanceX", 1, 3, -1, 1, Q("44.1673 mm")),
])
pocket5 = body.newObject("PartDesign::Pocket", "Pocket004")
pocket5.Profile = sketch13
pocket5.Type = "ThroughAll"

# Sketch on YZ plane
sketch14 = body.newObject("Sketcher::SketchObject", "Sketch013")
sketch14.AttachmentSupport = (doc.getObject("YZ_Plane"), [""])
sketch14.MapMode = "FlatFace"
sketch14.AttachmentOffset = App.Placement(V(0, 0, 143), App.Rotation())
sketch14.addGeometry([
    Part.Circle(V(0, 142, 0), V(0, 0, 1), 6),  # 0
    Part.Circle(V(-44, 116, 0), V(0, 0, 1), 6),  # 1
    Part.Circle(V(-44, 66, 0), V(0, 0, 1), 6),  # 2
    Part.Circle(V(0, 40, 0), V(0, 0, 1), 6),  # 3
    Part.Circle(V(44, 66, 0), V(0, 0, 1), 6),  # 4
    Part.Circle(V(44, 116, 0), V(0, 0, 1), 6),  # 5
], False)
sketch14.addConstraint([
    Sketcher.Constraint("Equal", 0, 1),
    Sketcher.Constraint("Equal", 1, 2),
    Sketcher.Constraint("Equal", 2, 3),
    Sketcher.Constraint("Equal", 3, 4),
    Sketcher.Constraint("Equal", 4, 5),
    Sketcher.Constraint("Symmetric", 2, 3, 4, 3, -2),
    Sketcher.Constraint("Symmetric", 1, 3, 5, 3, -2),
    Sketcher.Constraint("PointOnObject", 0, 3, -2),
    Sketcher.Constraint("PointOnObject", 3, 3, -2),
    Sketcher.Constraint("Vertical", 1, 3, 2, 3),
    Sketcher.Constraint("Diameter", 0, Q("13 mm")),
    Sketcher.Constraint("DistanceY", -1, 1, 0, 3, Q("142 mm")),
    Sketcher.Constraint("DistanceY", -1, 1, 3, 3, Q("40 mm")),
    Sketcher.Constraint("DistanceY", 2, 3, 1, 3, Q("51 mm")),
    Sketcher.Constraint("DistanceY", -1, 1, 1, 3, Q("116.5 mm")),
    Sketcher.Constraint("DistanceX", 1, 3, -1, 1, Q("44.1673 mm")),
])
pocket6 = body.newObject("PartDesign::Pocket", "Pocket005")
pocket6.Profile = sketch14
pocket6.Length = 5

# Sketch on XY plane
sketch15 = body.newObject("Sketcher::SketchObject", "Sketch014")
sketch15.AttachmentSupport = (doc.getObject("XY_Plane"), [""])
sketch15.MapMode = "FlatFace"
sketch15.AttachmentOffset = App.Placement(V(0, 0, 20), App.Rotation())
sketch15.addGeometry([
    Part.Circle(V(-51, 0, 0), V(0, 0, 1), 2.5),  # 0
    Part.Circle(V(-25.5, -44.2, 0), V(0, 0, 1), 2.5),  # 1
    Part.Circle(V(25.5, -44.2, 0), V(0, 0, 1), 2.5),  # 2
    Part.Circle(V(51, 0, 0), V(0, 0, 1), 2.5),  # 3
    Part.Circle(V(25.5, 44.2, 0), V(0, 0, 1), 2.5),  # 4
    Part.Circle(V(-25.5, 44.2, 0), V(0, 0, 1), 2.5),  # 5
], False)
sketch15.addConstraint([
    Sketcher.Constraint("Equal", 0, 1),
    Sketcher.Constraint("Equal", 1, 2),
    Sketcher.Constraint("Equal", 2, 3),
    Sketcher.Constraint("Equal", 3, 4),
    Sketcher.Constraint("Equal", 4, 5),
    Sketcher.Constraint("Symmetric", 0, 3, 3, 3, -1, 1),
    Sketcher.Constraint("Symmetric", 1, 3, 4, 3, -1, 1),
    Sketcher.Constraint("Symmetric", 2, 3, 5, 3, -1, 1),
    Sketcher.Constraint("Symmetric", 1, 3, 2, 3, -2),
    Sketcher.Constraint("PointOnObject", 0, 3, -1),
    Sketcher.Constraint("Diameter", 0, Q("5 mm")),
    Sketcher.Constraint("DistanceX", 0, 3, -1, 1, Q("51 mm")),
    Sketcher.Constraint("DistanceX", 1, 3, 2, 3, Q("51 mm")),
    Sketcher.Constraint("DistanceY", 1, 3, -1, 1, Q("44.1673 mm")),
])
pocket7 = body.newObject("PartDesign::Pocket", "Pocket006")
pocket7.Profile = sketch15
pocket7.Type = "ThroughAll"

# Sketch on XY plane
sketch16 = body.newObject("Sketcher::SketchObject", "Sketch015")
sketch16.AttachmentSupport = (doc.getObject("XY_Plane"), [""])
sketch16.MapMode = "FlatFace"
sketch16.AttachmentOffset = App.Placement(V(0, 0, 20), App.Rotation())
sketch16.addGeometry([
    Part.Circle(V(-51, 0, 0), V(0, 0, 1), 6),  # 0
    Part.Circle(V(-26, -44, 0), V(0, 0, 1), 6),  # 1
    Part.Circle(V(26, -44, 0), V(0, 0, 1), 6),  # 2
    Part.Circle(V(51, 0, 0), V(0, 0, 1), 6),  # 3
    Part.Circle(V(26, 44, 0), V(0, 0, 1), 6),  # 4
    Part.Circle(V(-26, 44, 0), V(0, 0, 1), 6),  # 5
], False)
sketch16.addConstraint([
    Sketcher.Constraint("Equal", 0, 1),
    Sketcher.Constraint("Equal", 1, 2),
    Sketcher.Constraint("Equal", 2, 3),
    Sketcher.Constraint("Equal", 3, 4),
    Sketcher.Constraint("Equal", 4, 5),
    Sketcher.Constraint("Symmetric", 0, 3, 3, 3, -1, 1),
    Sketcher.Constraint("Symmetric", 1, 3, 4, 3, -1, 1),
    Sketcher.Constraint("Symmetric", 2, 3, 5, 3, -1, 1),
    Sketcher.Constraint("Symmetric", 1, 3, 2, 3, -2),
    Sketcher.Constraint("PointOnObject", 0, 3, -1),
    Sketcher.Constraint("Diameter", 0, Q("13 mm")),
    Sketcher.Constraint("DistanceX", 0, 3, -1, 1, Q("51 mm")),
    Sketcher.Constraint("DistanceX", 1, 3, 2, 3, Q("51 mm")),
    Sketcher.Constraint("DistanceY", 1, 3, -1, 1, Q("44.1673 mm")),
])
pocket8 = body.newObject("PartDesign::Pocket", "Pocket007")
pocket8.Profile = sketch16
pocket8.Length = 5

# Sketch on XY plane
sketch17 = body.newObject("Sketcher::SketchObject", "Sketch016")
sketch17.AttachmentSupport = (doc.getObject("XY_Plane"), [""])
sketch17.MapMode = "FlatFace"
sketch17.AttachmentOffset = App.Placement(V(0, 0, 5), App.Rotation())
sketch17.addGeometry([
    Part.Circle(V(26, -15, 0), V(0, 0, 1), 2.5),  # 0
    Part.Circle(V(26, 15, 0), V(0, 0, 1), 2.5),  # 1
    Part.Circle(V(0, 30, 0), V(0, 0, 1), 2.5),  # 2
    Part.Circle(V(-26, 15, 0), V(0, 0, 1), 2.5),  # 3
    Part.Circle(V(-26, -15, 0), V(0, 0, 1), 2.5),  # 4
    Part.Circle(V(0, -30, 0), V(0, 0, 1), 2.5),  # 5
], False)
sketch17.addConstraint([
    Sketcher.Constraint("Equal", 0, 1),
    Sketcher.Constraint("Equal", 1, 2),
    Sketcher.Constraint("Equal", 2, 3),
    Sketcher.Constraint("Equal", 3, 4),
    Sketcher.Constraint("Equal", 4, 5),
    Sketcher.Constraint("Symmetric", 0, 3, 3, 3, -1, 1),
    Sketcher.Constraint("Symmetric", 1, 3, 4, 3, -1, 1),
    Sketcher.Constraint("Symmetric", 2, 3, 5, 3, -1, 1),
    Sketcher.Constraint("Symmetric", 1, 3, 3, 3, -2),
    Sketcher.Constraint("PointOnObject", 2, 3, -2),
    Sketcher.Constraint("Diameter", 0, Q("5 mm")),
    Sketcher.Constraint("DistanceY", 0, 3, -1, 1, Q("15 mm")),
    Sketcher.Constraint("DistanceY", -1, 1, 2, 3, Q("30 mm")),
    Sketcher.Constraint("DistanceX", -1, 1, 0, 3, Q("25.9808 mm")),
])
pad9 = body.newObject("PartDesign::Pad", "Pad008")
pad9.Profile = sketch17
pad9.Length = 5
pad9.Reversed = True

# Sketch on YZ plane
sketch18 = body.newObject("Sketcher::SketchObject", "Sketch017")
sketch18.AttachmentSupport = (doc.getObject("YZ_Plane"), [""])
sketch18.MapMode = "FlatFace"
sketch18.AttachmentOffset = App.Placement(V(0, 0, 123), App.Rotation())
sketch18.addGeometry([
    Part.Circle(V(30, 91, 0), V(0, 0, 1), 2.5),  # 0
    Part.Circle(V(15, 65, 0), V(0, 0, 1), 2.5),  # 1
    Part.Circle(V(-15, 65, 0), V(0, 0, 1), 2.5),  # 2
    Part.Circle(V(-30, 91, 0), V(0, 0, 1), 2.5),  # 3
    Part.Circle(V(-15, 117, 0), V(0, 0, 1), 2.5),  # 4
    Part.Circle(V(15, 117, 0), V(0, 0, 1), 2.5),  # 5
], False)
sketch18.addConstraint([
    Sketcher.Constraint("Equal", 0, 1),
    Sketcher.Constraint("Equal", 1, 2),
    Sketcher.Constraint("Equal", 2, 3),
    Sketcher.Constraint("Equal", 3, 4),
    Sketcher.Constraint("Equal", 4, 5),
    Sketcher.Constraint("Symmetric", 1, 3, 2, 3, -2),
    Sketcher.Constraint("Symmetric", 0, 3, 3, 3, -2),
    Sketcher.Constraint("Symmetric", 4, 3, 5, 3, -2),
    Sketcher.Constraint("Vertical", 2, 3, 4, 3),
    Sketcher.Constraint("Diameter", 0, Q("5 mm")),
    Sketcher.Constraint("DistanceX", -1, 1, 0, 3, Q("30 mm")),
    Sketcher.Constraint("DistanceY", -1, 1, 0, 3, Q("91 mm")),
    Sketcher.Constraint("DistanceX", -1, 1, 1, 3, Q("15 mm")),
    Sketcher.Constraint("DistanceY", -1, 1, 1, 3, Q("65.0192 mm")),
    Sketcher.Constraint("DistanceY", -1, 1, 4, 3, Q("116.9808 mm")),
])
pad10 = body.newObject("PartDesign::Pad", "Pad009")
pad10.Profile = sketch18
pad10.Length = 5

doc.recompute()
